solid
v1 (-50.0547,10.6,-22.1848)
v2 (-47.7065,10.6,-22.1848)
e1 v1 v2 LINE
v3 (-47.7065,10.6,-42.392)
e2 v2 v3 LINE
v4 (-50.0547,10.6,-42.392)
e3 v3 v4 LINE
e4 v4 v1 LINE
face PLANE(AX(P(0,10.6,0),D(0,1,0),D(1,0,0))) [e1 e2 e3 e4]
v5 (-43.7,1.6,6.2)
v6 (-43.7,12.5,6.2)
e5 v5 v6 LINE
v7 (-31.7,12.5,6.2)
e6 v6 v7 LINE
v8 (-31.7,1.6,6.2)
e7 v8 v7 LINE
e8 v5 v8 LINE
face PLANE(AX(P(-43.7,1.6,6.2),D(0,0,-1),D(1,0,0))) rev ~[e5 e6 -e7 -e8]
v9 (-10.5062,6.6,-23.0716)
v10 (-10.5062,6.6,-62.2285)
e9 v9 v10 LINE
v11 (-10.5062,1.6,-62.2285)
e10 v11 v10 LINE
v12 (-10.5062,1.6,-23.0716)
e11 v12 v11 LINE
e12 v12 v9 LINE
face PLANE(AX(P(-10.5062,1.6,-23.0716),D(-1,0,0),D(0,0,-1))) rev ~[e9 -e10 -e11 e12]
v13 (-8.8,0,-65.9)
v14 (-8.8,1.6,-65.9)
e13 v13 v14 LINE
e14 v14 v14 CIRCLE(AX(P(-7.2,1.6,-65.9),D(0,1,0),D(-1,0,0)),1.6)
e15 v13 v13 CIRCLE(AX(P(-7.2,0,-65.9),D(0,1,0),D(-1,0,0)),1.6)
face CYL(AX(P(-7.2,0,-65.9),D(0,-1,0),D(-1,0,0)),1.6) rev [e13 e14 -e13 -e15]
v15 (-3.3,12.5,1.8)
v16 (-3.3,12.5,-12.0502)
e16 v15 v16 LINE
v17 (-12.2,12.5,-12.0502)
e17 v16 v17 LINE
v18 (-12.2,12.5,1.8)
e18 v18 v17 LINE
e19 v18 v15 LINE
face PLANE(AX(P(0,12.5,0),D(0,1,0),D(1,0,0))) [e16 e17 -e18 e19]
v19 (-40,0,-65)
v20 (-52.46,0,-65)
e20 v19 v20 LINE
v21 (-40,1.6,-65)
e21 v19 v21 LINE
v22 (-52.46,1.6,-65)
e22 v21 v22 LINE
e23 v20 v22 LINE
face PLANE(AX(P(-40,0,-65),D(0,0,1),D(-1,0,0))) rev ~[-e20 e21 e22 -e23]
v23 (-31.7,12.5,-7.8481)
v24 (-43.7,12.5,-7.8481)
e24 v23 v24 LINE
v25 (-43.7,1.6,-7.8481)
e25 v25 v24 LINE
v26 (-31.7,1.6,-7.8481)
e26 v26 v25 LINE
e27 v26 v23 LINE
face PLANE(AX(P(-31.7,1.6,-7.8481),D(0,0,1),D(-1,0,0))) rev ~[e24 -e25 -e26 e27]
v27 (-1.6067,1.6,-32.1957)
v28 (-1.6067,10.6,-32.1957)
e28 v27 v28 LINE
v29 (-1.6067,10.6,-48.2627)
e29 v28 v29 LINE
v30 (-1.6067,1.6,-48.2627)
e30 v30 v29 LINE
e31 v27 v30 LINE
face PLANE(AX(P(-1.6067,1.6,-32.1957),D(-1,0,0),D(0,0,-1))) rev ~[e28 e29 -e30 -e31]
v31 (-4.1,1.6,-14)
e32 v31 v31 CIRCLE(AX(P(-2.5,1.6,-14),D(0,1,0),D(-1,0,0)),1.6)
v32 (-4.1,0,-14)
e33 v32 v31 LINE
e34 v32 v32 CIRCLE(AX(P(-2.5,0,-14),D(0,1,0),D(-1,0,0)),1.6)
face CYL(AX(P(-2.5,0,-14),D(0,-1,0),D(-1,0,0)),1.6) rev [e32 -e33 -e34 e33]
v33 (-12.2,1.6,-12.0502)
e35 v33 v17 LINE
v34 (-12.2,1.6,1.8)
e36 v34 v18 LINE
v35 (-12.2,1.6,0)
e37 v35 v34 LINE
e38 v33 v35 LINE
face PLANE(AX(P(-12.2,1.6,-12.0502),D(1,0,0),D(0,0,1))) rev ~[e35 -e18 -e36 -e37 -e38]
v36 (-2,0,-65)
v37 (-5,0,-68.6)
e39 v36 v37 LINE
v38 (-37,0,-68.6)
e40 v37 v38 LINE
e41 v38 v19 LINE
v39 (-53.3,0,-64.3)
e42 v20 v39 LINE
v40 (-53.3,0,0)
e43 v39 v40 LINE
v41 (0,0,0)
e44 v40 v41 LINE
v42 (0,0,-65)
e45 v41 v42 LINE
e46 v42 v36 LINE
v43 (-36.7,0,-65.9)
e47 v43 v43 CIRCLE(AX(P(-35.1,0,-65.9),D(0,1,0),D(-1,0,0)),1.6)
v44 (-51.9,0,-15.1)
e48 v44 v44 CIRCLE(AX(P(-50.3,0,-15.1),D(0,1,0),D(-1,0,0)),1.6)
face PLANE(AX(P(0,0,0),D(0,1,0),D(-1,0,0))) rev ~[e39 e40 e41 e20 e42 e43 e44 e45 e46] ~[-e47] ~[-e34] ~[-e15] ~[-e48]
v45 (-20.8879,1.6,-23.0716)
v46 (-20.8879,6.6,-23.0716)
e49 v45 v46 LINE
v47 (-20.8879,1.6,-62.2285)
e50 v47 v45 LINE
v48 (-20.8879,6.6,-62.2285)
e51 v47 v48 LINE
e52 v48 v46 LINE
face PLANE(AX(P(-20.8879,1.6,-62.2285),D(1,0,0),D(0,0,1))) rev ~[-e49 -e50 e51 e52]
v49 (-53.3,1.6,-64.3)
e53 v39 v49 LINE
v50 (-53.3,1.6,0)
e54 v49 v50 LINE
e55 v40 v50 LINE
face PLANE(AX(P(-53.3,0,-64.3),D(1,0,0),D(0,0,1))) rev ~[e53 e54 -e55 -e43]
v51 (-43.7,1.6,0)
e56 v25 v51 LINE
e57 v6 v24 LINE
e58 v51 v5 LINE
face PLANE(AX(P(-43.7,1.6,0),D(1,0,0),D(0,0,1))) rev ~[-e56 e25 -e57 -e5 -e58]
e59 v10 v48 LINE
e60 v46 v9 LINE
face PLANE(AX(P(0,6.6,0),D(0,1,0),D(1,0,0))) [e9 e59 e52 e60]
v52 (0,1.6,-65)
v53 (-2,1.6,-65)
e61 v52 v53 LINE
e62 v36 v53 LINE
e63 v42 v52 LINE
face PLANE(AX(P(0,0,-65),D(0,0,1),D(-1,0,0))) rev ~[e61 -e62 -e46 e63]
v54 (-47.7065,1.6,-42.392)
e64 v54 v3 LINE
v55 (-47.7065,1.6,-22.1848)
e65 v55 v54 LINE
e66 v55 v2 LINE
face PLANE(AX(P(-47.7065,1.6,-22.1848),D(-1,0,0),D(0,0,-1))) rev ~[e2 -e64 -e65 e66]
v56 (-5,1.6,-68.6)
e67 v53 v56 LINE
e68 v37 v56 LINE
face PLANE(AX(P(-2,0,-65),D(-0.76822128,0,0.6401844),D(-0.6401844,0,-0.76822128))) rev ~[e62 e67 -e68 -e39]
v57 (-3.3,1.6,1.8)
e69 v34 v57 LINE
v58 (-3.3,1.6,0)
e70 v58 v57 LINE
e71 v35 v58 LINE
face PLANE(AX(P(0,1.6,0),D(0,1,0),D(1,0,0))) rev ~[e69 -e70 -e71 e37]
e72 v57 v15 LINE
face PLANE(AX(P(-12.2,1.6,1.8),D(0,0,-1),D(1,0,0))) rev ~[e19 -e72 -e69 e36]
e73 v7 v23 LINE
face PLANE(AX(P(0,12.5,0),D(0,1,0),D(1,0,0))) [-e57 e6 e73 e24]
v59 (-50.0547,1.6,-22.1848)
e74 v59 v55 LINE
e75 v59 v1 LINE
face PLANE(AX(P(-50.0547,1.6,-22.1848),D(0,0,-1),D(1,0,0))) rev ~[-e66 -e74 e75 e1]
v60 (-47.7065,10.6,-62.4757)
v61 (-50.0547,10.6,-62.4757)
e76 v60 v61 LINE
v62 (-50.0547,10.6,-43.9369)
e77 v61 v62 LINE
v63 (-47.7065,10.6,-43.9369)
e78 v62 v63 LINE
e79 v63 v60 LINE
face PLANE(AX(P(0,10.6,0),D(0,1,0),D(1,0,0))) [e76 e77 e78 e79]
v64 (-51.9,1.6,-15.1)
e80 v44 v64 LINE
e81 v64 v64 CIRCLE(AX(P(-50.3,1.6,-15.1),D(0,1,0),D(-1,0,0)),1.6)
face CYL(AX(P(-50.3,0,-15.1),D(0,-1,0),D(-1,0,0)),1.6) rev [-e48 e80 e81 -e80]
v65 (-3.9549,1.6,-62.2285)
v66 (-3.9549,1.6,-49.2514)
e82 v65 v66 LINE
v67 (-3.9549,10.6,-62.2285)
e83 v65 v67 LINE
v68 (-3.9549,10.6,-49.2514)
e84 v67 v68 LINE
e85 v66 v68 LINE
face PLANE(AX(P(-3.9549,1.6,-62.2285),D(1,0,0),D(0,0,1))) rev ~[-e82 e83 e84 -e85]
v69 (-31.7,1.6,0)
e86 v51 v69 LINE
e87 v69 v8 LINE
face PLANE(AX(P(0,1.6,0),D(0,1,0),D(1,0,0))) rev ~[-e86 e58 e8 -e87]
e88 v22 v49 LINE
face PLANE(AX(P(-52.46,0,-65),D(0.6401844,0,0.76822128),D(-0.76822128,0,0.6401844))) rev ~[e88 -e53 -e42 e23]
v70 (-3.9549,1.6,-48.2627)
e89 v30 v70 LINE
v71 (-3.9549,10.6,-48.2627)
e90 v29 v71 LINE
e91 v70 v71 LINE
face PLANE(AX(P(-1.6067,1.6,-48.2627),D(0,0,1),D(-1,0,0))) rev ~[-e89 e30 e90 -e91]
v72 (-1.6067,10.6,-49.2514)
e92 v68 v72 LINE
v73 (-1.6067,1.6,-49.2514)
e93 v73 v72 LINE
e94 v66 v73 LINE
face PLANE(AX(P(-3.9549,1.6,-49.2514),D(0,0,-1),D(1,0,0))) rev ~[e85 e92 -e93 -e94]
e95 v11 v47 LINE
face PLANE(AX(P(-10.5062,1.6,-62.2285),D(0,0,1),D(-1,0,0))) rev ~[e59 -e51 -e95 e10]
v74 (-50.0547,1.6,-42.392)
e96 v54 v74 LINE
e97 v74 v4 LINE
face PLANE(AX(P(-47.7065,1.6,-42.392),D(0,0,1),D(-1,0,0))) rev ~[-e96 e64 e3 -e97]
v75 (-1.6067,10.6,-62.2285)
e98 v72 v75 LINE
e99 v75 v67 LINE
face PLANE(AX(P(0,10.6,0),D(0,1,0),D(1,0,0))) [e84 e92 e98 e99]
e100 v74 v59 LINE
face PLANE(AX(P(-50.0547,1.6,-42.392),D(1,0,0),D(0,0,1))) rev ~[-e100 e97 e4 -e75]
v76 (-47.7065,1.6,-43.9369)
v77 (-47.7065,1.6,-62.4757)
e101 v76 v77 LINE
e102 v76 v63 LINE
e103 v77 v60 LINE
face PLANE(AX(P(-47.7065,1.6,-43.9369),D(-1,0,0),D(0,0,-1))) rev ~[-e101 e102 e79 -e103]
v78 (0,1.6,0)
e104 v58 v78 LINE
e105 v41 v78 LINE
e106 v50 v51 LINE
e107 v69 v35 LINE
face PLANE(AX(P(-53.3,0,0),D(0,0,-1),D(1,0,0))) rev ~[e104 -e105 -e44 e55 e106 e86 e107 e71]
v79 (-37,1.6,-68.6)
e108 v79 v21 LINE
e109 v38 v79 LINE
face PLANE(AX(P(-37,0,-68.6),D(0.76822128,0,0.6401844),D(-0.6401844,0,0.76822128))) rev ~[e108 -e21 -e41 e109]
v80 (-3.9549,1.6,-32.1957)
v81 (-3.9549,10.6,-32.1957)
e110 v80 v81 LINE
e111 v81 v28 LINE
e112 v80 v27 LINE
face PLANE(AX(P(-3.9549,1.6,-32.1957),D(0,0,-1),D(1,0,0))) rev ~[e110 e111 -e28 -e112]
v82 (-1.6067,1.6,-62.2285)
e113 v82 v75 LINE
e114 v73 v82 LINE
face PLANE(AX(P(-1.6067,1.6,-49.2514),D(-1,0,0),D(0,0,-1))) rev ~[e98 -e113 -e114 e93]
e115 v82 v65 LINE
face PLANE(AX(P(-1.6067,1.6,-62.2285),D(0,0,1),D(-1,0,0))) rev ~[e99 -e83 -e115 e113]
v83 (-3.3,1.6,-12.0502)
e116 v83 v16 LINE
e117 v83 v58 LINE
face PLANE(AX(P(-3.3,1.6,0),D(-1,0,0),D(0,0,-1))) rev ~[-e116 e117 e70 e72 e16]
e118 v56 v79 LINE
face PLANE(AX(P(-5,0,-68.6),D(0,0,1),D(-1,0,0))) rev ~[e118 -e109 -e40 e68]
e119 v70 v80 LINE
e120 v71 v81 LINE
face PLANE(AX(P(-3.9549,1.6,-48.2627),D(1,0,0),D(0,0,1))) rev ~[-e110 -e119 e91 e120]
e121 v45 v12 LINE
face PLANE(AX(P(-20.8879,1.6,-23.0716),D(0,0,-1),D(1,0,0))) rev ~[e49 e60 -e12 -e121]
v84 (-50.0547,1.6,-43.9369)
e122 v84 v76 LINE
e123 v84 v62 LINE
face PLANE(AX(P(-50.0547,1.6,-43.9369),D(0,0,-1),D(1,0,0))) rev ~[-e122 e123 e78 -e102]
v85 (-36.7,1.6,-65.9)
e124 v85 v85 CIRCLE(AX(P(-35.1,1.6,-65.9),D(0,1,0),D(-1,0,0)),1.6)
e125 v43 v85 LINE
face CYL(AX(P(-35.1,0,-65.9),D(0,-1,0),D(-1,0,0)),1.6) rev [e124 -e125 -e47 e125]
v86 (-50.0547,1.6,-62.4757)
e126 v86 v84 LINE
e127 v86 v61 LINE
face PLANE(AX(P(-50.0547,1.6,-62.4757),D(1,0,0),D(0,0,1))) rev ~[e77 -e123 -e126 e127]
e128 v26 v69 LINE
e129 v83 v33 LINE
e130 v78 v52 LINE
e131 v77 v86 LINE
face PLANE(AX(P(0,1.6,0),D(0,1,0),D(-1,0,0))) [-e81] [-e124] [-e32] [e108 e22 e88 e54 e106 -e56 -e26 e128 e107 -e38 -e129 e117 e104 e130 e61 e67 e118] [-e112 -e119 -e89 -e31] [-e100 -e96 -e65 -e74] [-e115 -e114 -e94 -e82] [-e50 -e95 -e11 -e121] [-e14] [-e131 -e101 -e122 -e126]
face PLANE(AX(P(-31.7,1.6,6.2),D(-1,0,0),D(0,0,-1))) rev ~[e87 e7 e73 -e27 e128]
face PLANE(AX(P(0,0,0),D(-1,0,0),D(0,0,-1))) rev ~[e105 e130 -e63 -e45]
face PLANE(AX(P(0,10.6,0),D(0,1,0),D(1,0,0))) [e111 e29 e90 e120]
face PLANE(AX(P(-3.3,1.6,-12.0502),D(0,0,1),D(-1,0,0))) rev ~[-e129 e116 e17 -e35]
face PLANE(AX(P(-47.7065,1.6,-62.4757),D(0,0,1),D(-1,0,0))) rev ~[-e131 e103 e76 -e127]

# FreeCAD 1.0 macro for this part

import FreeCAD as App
import Part
import Sketcher

V = App.Vector
Q = App.Units.Quantity


def add_polygon(sketch, points):
    """Adds a closed chain of lines whose ends are joined by coincident constraints."""
    first, n = sketch.GeometryCount, len(points)
    for a, b in zip(points, points[1:] + points[:1]):
        sketch.addGeometry(Part.LineSegment(App.Vector(*a, 0), App.Vector(*b, 0)), False)
    for i in range(n):
        sketch.addConstraint(Sketcher.Constraint("Coincident", first + i, 2, first + (i + 1) % n, 1))

doc = App.newDocument("Part")
body = doc.addObject("PartDesign::Body", "Body")

sketch1 = body.newObject("Sketcher::SketchObject", "Sketch")
sketch1.AttachmentSupport = (doc.getObject("XZ_Plane"), [""])
sketch1.MapMode = "FlatFace"
add_polygon(sketch1, [(-53.3, -64.3), (-53.3, 0), (0, 0), (0, -65), (-2, -65), (-5, -68.6), (-37, -68.6), (-40, -65), (-52.5, -65)])
sketch1.addGeometry(Part.Circle(V(-7.2, -65.9, 0), V(0, 0, 1), 1.6), False)
sketch1.addGeometry(Part.Circle(V(-35.1, -65.9, 0), V(0, 0, 1), 1.6), False)
sketch1.addGeometry(Part.Circle(V(-2.5, -14, 0), V(0, 0, 1), 1.6), False)
sketch1.addGeometry(Part.Circle(V(-50.3, -15.1, 0), V(0, 0, 1), 1.6), False)
sketch1.addConstraint([
    Sketcher.Constraint("Vertical", 0),
    Sketcher.Constraint("Horizontal", 1),
    Sketcher.Constraint("Vertical", 2),
    Sketcher.Constraint("Horizontal", 3),
    Sketcher.Constraint("Horizontal", 5),
    Sketcher.Constraint("Horizontal", 7),
    Sketcher.Constraint("Coincident", 1, 2, -1, 1),
    Sketcher.Constraint("Equal", 9, 10),
    Sketcher.Constraint("Equal", 10, 11),
    Sketcher.Constraint("Equal", 11, 12),
    Sketcher.Constraint("Perpendicular", 4, 8),
    Sketcher.Constraint("Horizontal", 9, 3, 10, 3),
    Sketcher.Constraint("Horizontal", 3, 2, 6, 2),
    Sketcher.Constraint("Equal", 4, 6),
    Sketcher.Constraint("Diameter", 9, Q("3.2 mm")),
    Sketcher.Constraint("DistanceX", 3, 2, 3, 1, Q("2 mm")),
    Sketcher.Constraint("DistanceY", 2, 2, 2, 1, Q("65 mm")),
    Sketcher.Constraint("DistanceX", 1, 1, 1, 2, Q("53.3 mm")),
    Sketcher.Constraint("DistanceY", 11, 3, -1, 1, Q("14 mm")),
    Sketcher.Constraint("DistanceX", 4, 2, -1, 1, Q("5 mm")),
    Sketcher.Constraint("DistanceX", 5, 2, -1, 1, Q("37 mm")),
    Sketcher.Constraint("DistanceX", 11, 3, -1, 1, Q("2.5 mm")),
    Sketcher.Constraint("DistanceY", 4, 2, -1, 1, Q("68.6 mm")),
    Sketcher.Constraint("DistanceX", 10, 3, 9, 3, Q("27.9 mm")),
    Sketcher.Constraint("DistanceX", 9, 3, 11, 3, Q("4.7 mm")),
    Sketcher.Constraint("DistanceY", 9, 3, 11, 3, Q("51.9 mm")),
    Sketcher.Constraint("DistanceY", 12, 3, 11, 3, Q("1.1 mm")),
    Sketcher.Constraint("DistanceX", 12, 3, 10, 3, Q("15.2 mm")),
    Sketcher.Constraint("DistanceY", 0, 1, 0, 2, Q("64.3 mm")),
])
pad1 = body.newObject("PartDesign::Pad", "Pad")
pad1.Profile = sketch1
pad1.Length = 1.6
pad1.Reversed = True

sketch2 = body.newObject("Sketcher::SketchObject", "Sketch001")
sketch2.AttachmentSupport = (doc.getObject("XZ_Plane"), [""])
sketch2.MapMode = "FlatFace"
sketch2.AttachmentOffset = App.Placement(V(0, 0, -1.6), App.Rotation())
add_polygon(sketch2, [(-44, 6), (-32, 6), (-32, -8), (-44, -8)])
add_polygon(sketch2, [(-12, -12), (-12, 2), (-3, 2), (-3, -12)])
sketch2.addConstraint([
    Sketcher.Constraint("Horizontal", 0),
    Sketcher.Constraint("Vertical", 1),
    Sketcher.Constraint("Horizontal", 2),
    Sketcher.Constraint("Vertical", 3),
    Sketcher.Constraint("Vertical", 4),
    Sketcher.Constraint("Horizontal", 5),
    Sketcher.Constraint("Vertical", 6),
    Sketcher.Constraint("Horizontal", 7),
    Sketcher.Constraint("DistanceX", 0, 1, 0, 2, Q("12 mm")),
    Sketcher.Constraint("DistanceX", 5, 1, 5, 2, Q("8.9 mm")),
    Sketcher.Constraint("DistanceY", -1, 1, 0, 2, Q("6.2 mm")),
    Sketcher.Constraint("DistanceY", -1, 1, 4, 2, Q("1.8 mm")),
    Sketcher.Constraint("DistanceX", 5, 2, -1, 1, Q("3.3 mm")),
    Sketcher.Constraint("DistanceX", 0, 2, -1, 1, Q("31.7 mm")),
    Sketcher.Constraint("DistanceY", 1, 2, 1, 1, Q("14.048 mm")),
    Sketcher.Constraint("DistanceY", 4, 1, 4, 2, Q("13.8502 mm")),
])
pad2 = body.newObject("PartDesign::Pad", "Pad001")
pad2.Profile = sketch2
pad2.Length = 10.9
pad2.Reversed = True

sketch3 = body.newObject("Sketcher::SketchObject", "Sketch002")
sketch3.AttachmentSupport = (doc.getObject("XZ_Plane"), [""])
sketch3.MapMode = "FlatFace"
sketch3.AttachmentOffset = App.Placement(V(0, 0, -1.6), App.Rotation())
add_polygon(sketch3, [(-21, -62), (-21, -23), (-11, -23), (-11, -62)])
sketch3.addConstraint([
    Sketcher.Constraint("Vertical", 0),
    Sketcher.Constraint("Horizontal", 1),
    Sketcher.Constraint("Vertical", 2),
    Sketcher.Constraint("Horizontal", 3),
    Sketcher.Constraint("DistanceY", 0, 1, 0, 2, Q("39.157 mm")),
    Sketcher.Constraint("DistanceX", 1, 1, 1, 2, Q("10.3817 mm")),
    Sketcher.Constraint("DistanceX", 0, 2, -1, 1, Q("20.888 mm")),
    Sketcher.Constraint("DistanceY", 0, 2, -1, 1, Q("23.0716 mm")),
])
pad3 = body.newObject("PartDesign::Pad", "Pad002")
pad3.Profile = sketch3
pad3.Length = 5
pad3.Reversed = True

sketch4 = body.newObject("Sketcher::SketchObject", "Sketch003")
sketch4.AttachmentSupport = (doc.getObject("XZ_Plane"), [""])
sketch4.MapMode = "FlatFace"
sketch4.AttachmentOffset = App.Placement(V(0, 0, -1.6), App.Rotation())
add_polygon(sketch4, [(-50.1, -42.4), (-50.1, -22.2), (-47.7, -22.2), (-47.7, -42.4)])
add_polygon(sketch4, [(-50.1, -62.5), (-50.1, -43.9), (-47.7, -43.9), (-47.7, -62.5)])
add_polygon(sketch4, [(-4, -48.3), (-4, -32.2), (-1.6, -32.2), (-1.6, -48.3)])
add_polygon(sketch4, [(-4, -62.2), (-4, -49.3), (-1.6, -49.3), (-1.6, -62.2)])
sketch4.addConstraint([
    Sketcher.Constraint("Vertical", 0),
    Sketcher.Constraint("Horizontal", 1),
    Sketcher.Constraint("Vertical", 2),
    Sketcher.Constraint("Horizontal", 3),
    Sketcher.Constraint("Vertical", 4),
    Sketcher.Constraint("Horizontal", 5),
    Sketcher.Constraint("Vertical", 6),
    Sketcher.Constraint("Horizontal", 7),
    Sketcher.Constraint("Vertical", 8),
    Sketcher.Constraint("Horizontal", 9),
    Sketcher.Constraint("Vertical", 10),
    Sketcher.Constraint("Horizontal", 11),
    Sketcher.Constraint("Vertical", 12),
    Sketcher.Constraint("Horizontal", 13),
    Sketcher.Constraint("Vertical", 14),
    Sketcher.Constraint("Horizontal", 15),
    Sketcher.Constraint("Vertical", 3, 2, 4, 2),
    Sketcher.Constraint("Vertical", 2, 2, 5, 2),
    Sketcher.Constraint("Vertical", 11, 2, 12, 2),
    Sketcher.Constraint("Vertical", 10, 2, 13, 2),
    Sketcher.Constraint("Equal", 7, 9),
    Sketcher.Constraint("DistanceY", 8, 1, 8, 2, Q("16.067 mm")),
    Sketcher.Constraint("DistanceY", 12, 1, 12, 2, Q("12.977 mm")),
    Sketcher.Constraint("DistanceX", 1, 1, 1, 2, Q("2.3482 mm")),
    Sketcher.Constraint("DistanceY", 0, 1, 0, 2, Q("20.2072 mm")),
    Sketcher.Constraint("DistanceY", 4, 1, 4, 2, Q("18.5388 mm")),
    Sketcher.Constraint("DistanceY", 2, 2, -1, 1, Q("42.392 mm")),
    Sketcher.Constraint("DistanceY", 4, 2, -1, 1, Q("43.937 mm")),
    Sketcher.Constraint("DistanceX", 8, 2, -1, 1, Q("3.955 mm")),
    Sketcher.Constraint("DistanceY", 8, 2, 1, 2, Q("10.011 mm")),
    Sketcher.Constraint("DistanceX", 0, 2, 9, 2, Q("48.448 mm")),
    Sketcher.Constraint("DistanceY", 12, 2, -1, 1, Q("49.2514 mm")),
])
pad4 = body.newObject("PartDesign::Pad", "Pad003")
pad4.Profile = sketch4
pad4.Length = 9
pad4.Reversed = True

doc.recompute()
